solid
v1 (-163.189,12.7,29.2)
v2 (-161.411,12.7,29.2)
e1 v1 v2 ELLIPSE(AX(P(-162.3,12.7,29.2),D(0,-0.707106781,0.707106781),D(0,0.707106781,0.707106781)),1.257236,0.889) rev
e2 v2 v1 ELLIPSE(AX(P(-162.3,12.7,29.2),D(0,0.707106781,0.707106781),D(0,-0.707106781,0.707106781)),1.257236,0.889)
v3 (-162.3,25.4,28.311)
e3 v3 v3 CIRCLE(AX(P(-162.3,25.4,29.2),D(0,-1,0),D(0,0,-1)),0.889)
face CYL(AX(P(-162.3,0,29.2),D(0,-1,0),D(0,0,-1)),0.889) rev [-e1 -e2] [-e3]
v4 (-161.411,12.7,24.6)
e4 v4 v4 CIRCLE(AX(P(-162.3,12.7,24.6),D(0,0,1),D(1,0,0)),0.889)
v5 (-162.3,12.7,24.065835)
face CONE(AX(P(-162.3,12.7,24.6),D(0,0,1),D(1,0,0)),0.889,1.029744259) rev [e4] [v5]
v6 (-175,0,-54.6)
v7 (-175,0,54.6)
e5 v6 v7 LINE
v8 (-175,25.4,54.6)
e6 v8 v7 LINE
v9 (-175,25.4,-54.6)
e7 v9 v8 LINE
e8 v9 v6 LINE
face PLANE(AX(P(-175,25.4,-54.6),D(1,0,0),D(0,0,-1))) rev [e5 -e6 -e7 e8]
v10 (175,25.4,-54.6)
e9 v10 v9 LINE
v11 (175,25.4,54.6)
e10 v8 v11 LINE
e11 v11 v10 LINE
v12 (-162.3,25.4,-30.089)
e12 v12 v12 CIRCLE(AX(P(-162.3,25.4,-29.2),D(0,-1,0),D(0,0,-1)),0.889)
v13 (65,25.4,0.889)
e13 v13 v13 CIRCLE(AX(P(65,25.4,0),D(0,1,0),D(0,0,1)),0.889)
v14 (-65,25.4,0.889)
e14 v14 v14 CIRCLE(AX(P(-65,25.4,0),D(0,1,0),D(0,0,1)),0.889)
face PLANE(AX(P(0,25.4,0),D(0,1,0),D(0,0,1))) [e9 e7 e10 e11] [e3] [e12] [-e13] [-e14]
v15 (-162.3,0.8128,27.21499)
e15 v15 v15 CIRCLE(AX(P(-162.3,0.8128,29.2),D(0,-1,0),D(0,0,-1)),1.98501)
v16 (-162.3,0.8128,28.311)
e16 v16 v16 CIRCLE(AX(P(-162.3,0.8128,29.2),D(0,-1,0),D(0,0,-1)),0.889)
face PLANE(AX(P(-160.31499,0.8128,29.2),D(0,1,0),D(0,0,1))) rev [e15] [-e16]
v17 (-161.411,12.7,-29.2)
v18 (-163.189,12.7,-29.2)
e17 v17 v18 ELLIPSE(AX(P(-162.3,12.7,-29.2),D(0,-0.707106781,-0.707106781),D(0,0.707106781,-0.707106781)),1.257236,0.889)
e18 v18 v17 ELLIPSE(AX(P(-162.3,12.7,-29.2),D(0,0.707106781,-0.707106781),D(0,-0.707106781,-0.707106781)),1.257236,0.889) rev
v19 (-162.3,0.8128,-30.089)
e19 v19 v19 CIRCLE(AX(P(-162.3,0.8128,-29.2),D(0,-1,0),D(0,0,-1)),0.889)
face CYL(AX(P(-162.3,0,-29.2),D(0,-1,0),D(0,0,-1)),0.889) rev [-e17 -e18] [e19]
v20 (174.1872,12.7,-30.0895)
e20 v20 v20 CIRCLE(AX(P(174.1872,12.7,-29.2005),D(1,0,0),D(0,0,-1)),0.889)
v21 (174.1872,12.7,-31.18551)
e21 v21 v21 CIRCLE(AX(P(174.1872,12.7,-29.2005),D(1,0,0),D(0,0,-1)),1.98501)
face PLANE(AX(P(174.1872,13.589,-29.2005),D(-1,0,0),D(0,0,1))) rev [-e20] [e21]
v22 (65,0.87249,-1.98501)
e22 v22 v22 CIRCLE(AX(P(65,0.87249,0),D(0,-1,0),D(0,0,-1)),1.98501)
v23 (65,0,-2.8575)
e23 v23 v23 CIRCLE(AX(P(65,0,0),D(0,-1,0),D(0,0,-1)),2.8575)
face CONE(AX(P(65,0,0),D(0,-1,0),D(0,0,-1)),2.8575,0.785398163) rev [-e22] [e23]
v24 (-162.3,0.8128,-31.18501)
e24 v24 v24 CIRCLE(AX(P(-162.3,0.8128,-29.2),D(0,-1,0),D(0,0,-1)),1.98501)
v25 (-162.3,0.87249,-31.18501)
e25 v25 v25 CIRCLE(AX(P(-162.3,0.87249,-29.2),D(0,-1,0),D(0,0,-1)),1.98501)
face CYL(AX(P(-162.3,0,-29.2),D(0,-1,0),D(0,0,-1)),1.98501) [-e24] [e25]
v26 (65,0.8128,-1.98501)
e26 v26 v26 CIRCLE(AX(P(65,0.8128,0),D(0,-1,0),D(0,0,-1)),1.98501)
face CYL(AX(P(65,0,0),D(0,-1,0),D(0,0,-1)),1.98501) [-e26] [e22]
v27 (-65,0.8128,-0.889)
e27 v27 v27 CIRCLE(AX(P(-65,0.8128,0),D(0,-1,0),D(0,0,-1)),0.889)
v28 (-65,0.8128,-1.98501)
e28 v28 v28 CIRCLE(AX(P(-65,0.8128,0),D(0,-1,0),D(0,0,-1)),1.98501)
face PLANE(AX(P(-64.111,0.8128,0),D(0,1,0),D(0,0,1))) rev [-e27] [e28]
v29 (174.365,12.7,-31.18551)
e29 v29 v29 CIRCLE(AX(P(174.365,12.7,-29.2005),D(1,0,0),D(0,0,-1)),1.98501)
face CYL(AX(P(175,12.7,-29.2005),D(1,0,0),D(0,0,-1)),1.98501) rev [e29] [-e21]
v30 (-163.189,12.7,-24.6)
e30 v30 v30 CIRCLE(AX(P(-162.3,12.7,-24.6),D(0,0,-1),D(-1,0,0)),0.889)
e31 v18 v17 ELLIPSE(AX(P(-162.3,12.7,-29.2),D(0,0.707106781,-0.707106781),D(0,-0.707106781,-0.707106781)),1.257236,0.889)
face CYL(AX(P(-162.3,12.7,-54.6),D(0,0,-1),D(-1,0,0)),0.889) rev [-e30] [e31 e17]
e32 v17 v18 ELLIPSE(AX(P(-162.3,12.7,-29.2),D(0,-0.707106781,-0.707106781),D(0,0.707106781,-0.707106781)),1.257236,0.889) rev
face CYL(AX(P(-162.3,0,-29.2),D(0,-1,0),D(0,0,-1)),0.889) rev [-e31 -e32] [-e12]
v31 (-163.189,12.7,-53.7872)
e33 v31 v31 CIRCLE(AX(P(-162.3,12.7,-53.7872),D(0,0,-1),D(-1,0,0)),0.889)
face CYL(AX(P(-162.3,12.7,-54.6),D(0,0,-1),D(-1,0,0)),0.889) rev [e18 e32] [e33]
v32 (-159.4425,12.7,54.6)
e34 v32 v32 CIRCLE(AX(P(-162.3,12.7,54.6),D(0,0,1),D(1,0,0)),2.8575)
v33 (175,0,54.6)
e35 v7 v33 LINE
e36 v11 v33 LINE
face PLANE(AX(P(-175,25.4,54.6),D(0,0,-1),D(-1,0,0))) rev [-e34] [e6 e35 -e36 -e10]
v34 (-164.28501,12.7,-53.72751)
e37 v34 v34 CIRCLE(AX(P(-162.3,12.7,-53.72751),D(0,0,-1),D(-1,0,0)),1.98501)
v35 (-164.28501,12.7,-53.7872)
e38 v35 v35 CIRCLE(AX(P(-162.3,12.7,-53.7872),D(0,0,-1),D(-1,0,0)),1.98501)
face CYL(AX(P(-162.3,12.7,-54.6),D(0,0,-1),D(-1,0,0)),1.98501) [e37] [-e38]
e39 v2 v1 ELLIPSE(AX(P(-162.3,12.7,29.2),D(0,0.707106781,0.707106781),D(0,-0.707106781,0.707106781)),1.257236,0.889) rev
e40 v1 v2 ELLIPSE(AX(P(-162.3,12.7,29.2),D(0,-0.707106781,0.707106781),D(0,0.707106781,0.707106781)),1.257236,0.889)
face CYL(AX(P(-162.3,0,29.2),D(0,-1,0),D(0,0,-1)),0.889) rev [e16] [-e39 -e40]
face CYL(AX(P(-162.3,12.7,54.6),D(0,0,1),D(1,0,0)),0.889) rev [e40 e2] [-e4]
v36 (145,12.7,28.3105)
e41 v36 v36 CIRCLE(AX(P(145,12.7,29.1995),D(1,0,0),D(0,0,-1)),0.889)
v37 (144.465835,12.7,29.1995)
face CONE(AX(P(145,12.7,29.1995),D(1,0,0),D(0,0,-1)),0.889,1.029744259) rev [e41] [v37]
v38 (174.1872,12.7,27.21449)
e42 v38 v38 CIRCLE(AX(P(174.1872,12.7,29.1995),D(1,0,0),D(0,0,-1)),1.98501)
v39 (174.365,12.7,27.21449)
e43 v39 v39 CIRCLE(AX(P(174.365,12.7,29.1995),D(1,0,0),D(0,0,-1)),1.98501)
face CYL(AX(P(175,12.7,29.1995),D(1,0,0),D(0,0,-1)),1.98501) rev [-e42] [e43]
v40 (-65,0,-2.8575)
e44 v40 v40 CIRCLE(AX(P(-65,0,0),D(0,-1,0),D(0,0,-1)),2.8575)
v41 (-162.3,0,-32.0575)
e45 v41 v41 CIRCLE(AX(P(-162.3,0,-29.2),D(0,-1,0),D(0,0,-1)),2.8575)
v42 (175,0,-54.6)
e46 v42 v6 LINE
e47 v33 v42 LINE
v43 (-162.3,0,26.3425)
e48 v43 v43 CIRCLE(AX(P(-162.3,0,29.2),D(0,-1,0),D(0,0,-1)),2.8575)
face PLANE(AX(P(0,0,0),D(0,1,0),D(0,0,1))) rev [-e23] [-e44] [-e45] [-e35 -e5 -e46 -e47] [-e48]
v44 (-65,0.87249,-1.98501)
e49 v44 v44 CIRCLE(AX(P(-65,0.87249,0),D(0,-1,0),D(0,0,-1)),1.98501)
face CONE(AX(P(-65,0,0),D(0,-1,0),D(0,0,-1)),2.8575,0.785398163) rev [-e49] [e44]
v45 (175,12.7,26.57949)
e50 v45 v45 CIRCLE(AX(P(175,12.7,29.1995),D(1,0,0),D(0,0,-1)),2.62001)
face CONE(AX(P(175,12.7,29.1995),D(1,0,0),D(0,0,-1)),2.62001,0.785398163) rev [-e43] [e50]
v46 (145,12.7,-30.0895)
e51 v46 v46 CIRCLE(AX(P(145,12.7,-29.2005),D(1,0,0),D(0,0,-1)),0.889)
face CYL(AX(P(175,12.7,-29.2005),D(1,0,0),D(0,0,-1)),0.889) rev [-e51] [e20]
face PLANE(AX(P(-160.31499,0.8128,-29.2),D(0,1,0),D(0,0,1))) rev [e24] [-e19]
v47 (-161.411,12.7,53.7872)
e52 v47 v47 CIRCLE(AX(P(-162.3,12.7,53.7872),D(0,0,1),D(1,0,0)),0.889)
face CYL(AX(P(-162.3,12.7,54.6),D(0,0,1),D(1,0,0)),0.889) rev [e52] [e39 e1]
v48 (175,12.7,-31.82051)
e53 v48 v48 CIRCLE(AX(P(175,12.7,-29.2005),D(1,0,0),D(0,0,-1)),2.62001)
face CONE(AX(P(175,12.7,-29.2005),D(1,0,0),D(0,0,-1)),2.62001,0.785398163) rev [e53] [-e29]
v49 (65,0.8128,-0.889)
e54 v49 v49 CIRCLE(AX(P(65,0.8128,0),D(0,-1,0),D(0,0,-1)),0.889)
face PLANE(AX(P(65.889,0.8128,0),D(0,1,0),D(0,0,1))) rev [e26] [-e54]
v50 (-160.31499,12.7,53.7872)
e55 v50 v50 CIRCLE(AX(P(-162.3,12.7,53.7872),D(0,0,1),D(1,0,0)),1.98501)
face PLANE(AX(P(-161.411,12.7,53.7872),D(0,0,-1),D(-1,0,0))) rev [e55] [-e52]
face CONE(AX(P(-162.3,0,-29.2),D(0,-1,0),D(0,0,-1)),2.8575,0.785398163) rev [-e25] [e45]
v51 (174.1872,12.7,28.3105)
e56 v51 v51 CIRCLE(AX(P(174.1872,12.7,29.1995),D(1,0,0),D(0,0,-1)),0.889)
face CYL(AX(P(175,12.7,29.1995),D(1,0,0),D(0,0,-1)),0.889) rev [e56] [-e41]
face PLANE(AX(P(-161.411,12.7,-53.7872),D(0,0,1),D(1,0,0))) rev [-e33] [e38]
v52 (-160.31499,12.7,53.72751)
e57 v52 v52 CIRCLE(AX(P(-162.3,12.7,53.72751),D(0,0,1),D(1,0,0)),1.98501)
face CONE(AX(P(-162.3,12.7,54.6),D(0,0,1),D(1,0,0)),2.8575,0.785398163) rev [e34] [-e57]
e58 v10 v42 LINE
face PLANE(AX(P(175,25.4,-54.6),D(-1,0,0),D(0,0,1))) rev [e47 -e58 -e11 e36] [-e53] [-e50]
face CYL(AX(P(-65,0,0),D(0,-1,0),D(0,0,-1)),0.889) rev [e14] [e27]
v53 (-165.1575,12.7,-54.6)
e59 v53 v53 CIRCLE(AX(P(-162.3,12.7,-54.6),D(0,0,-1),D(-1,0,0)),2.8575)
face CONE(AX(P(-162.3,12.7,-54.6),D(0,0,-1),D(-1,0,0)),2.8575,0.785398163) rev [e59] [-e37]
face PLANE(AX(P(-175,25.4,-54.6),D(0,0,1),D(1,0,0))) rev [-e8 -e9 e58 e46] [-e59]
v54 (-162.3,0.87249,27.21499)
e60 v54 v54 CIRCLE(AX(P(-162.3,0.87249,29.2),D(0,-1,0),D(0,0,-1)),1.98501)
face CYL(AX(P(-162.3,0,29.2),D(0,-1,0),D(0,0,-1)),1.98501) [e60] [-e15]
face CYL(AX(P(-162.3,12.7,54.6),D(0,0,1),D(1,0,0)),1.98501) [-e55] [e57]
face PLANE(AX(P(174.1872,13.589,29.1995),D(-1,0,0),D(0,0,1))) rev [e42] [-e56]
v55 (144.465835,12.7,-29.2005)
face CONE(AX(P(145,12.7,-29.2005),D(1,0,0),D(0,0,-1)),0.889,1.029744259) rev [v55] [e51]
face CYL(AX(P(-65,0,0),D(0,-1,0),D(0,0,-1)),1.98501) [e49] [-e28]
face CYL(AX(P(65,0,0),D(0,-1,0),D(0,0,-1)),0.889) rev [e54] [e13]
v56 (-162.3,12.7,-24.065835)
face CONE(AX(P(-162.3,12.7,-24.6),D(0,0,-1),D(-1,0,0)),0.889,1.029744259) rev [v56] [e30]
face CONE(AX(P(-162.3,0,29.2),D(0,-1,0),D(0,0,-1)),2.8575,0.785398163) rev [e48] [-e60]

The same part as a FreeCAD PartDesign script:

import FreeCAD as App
import Part
import Sketcher
from FreeCAD import Vector
Q = App.Units.Quantity


def add_polygon(sketch, points):
    """Adds a closed chain of lines whose ends are joined by coincident constraints."""
    first, n = sketch.GeometryCount, len(points)
    for a, b in zip(points, points[1:] + points[:1]):
        sketch.addGeometry(Part.LineSegment(App.Vector(*a, 0), App.Vector(*b, 0)), False)
    for i in range(n):
        sketch.addConstraint(Sketcher.Constraint("Coincident", first + i, 2, first + (i + 1) % n, 1))

doc = App.newDocument("Part")
params = doc.addObject("Spreadsheet::Sheet", "Params")
for row, (alias, value) in enumerate([
    ("pad1_length", "1 in"),
    ("groove_angle", "360 deg"),
    ("sketch3_width", "0.007 in"),
    ("groove2_angle", "360 deg"),
    ("linearpattern_pitch", "58.4 mm"),
    ("groove3_angle", "360 deg"),
    ("linearpattern2_pitch", "130 mm"),
    ("sketch5_width", "1 in"),
    ("sketch5_width2", "0.968 in"),
    ("sketch5_height", "0.035 in"),
    ("groove4_angle", "360 deg"),
    ("linearpattern3_pitch", "58.4 mm"),
], start=1):
    params.set(f"A{row}", alias)
    params.set(f"B{row}", "=" + value)
    params.setAlias(f"B{row}", alias)

body = doc.addObject("PartDesign::Body", "Body")

# Sketch on XZ plane
sketch1 = body.newObject("Sketcher::SketchObject", "Sketch")
sketch1.AttachmentSupport = (doc.getObject("XZ_Plane"), [""])
sketch1.MapMode = "FlatFace"
add_polygon(sketch1, [(-175, -55), (-175, 55), (175, 55), (175, -55)])  # lines 0-3
sketch1.addConstraint([
    Sketcher.Constraint("Vertical", 0),
    Sketcher.Constraint("Horizontal", 1),
    Sketcher.Constraint("Vertical", 2),
    Sketcher.Constraint("Horizontal", 3),
    Sketcher.Constraint("Symmetric", 0, 2, 2, 2, -1, 1),
    Sketcher.Constraint("DistanceX", 1, 1, 1, 2, 350.0),
    Sketcher.Constraint("DistanceY", 0, 1, 0, 2, 109.2),
])
pad1 = body.newObject("PartDesign::Pad", "Pad")
pad1.Profile = sketch1
pad1.setExpression("Length", "Params.pad1_length")
pad1.Reversed = True

# Sketch on YZ plane
sketch2 = body.newObject("Sketcher::SketchObject", "Sketch001")
sketch2.AttachmentSupport = (doc.getObject("YZ_Plane"), [""])
sketch2.MapMode = "FlatFace"
sketch2.AttachmentOffset = App.Placement(Vector(0, 0, -162.3), App.Rotation())
add_polygon(sketch2, [(12.7, 24.07), (12.7, 54.6), (9.84, 54.6), (10.71, 53.73), (10.71, 53.79), (11.81, 53.79), (11.81, 24.6)])  # lines 0-6
sketch2.addGeometry(Part.LineSegment(Vector(12.7, 54.6, 0), Vector(12.7, 24.07, 0)), True)  # axis
sketch2.addConstraint([
    Sketcher.Constraint("Vertical", 0),
    Sketcher.Constraint("Horizontal", 1),
    Sketcher.Constraint("Vertical", 3),
    Sketcher.Constraint("Horizontal", 4),
    Sketcher.Constraint("Vertical", 5),
    Sketcher.Constraint("Vertical", 7),
    Sketcher.Constraint("Coincident", 7, 1, 0, 2),
    Sketcher.Constraint("Equal", 0, 7),
    Sketcher.Constraint("Angle", 2, Q("-45 deg")),
    Sketcher.Constraint("Angle", 6, Q("-31 deg")),
    Sketcher.Constraint("DistanceX", -1, 1, 0, 2, Q("0.5 in")),
    Sketcher.Constraint("DistanceX", 1, 2, 1, 1, Q("0.1125 in")),
    Sketcher.Constraint("DistanceX", -1, 1, 4, 2, Q("0.465 in")),
    Sketcher.Constraint("DistanceY", 3, 2, 1, 2, Q("0.032 in")),
    Sketcher.Constraint("DistanceY", 5, 2, 5, 1, 29.1872),
    Sketcher.Constraint("DistanceX", 4, 1, 4, 2, 1.09601),
    Sketcher.Constraint("DistanceY", -1, 1, 0, 2, 54.6),
])
groove = body.newObject("PartDesign::Groove", "Groove")
groove.Profile = sketch2
groove.ReferenceAxis = (sketch2, ["Axis0"])
groove.setExpression("Angle", "Params.groove_angle")
doc.recompute()

mirrored = body.newObject("PartDesign::Mirrored", "Mirrored")
mirrored.Originals = [groove]
mirrored.MirrorPlane = (doc.getObject("XY_Plane"), [""])
body.Tip = mirrored

# Sketch on XZ plane
sketch3 = body.newObject("Sketcher::SketchObject", "Sketch002")
sketch3.AttachmentSupport = (doc.getObject("XZ_Plane"), [""])
sketch3.MapMode = "FlatFace"
sketch3.AttachmentOffset = App.Placement(Vector(0, 0, -0.5 * 25.4), App.Rotation())
add_polygon(sketch3, [(144.47, 29.2), (175, 29.2), (175, 26.58), (174.37, 27.21), (174.19, 27.21), (174.19, 28.31), (145, 28.31)])  # lines 0-6
sketch3.addGeometry(Part.LineSegment(Vector(175, 29.2, 0), Vector(144.47, 29.2, 0)), True)  # axis
sketch3.addConstraint([
    Sketcher.Constraint("Horizontal", 0),
    Sketcher.Constraint("Vertical", 1),
    Sketcher.Constraint("Horizontal", 3),
    Sketcher.Constraint("Vertical", 4),
    Sketcher.Constraint("Horizontal", 5),
    Sketcher.Constraint("Horizontal", 7),
    Sketcher.Constraint("Coincident", 7, 1, 0, 2),
    Sketcher.Constraint("Equal", 0, 7),
    Sketcher.Constraint("Angle", 2, Q("135 deg")),
    Sketcher.Constraint("Angle", 6, Q("121 deg")),
    Sketcher.Constraint("DistanceX", 3, 2, 3, 1, Q("0.007 in")),
    Sketcher.Constraint("DistanceX", 2, 2, 1, 2, Q("0.025 in")),
    Sketcher.Constraint("DistanceY", 4, 2, 0, 2, Q("0.035 in")),
    Sketcher.Constraint("DistanceX", 5, 2, 5, 1, 29.1872),
    Sketcher.Constraint("DistanceY", 1, 2, 1, 1, 2.62001),
    Sketcher.Constraint("DistanceX", -1, 1, 0, 2, 175.0),
    Sketcher.Constraint("DistanceY", -1, 1, 0, 2, 29.1995),
])
sketch3.setExpression("Constraints[17]", "Params.sketch3_width")
groove2 = body.newObject("PartDesign::Groove", "Groove001")
groove2.Profile = sketch3
groove2.ReferenceAxis = (sketch3, ["Axis0"])
groove2.setExpression("Angle", "Params.groove2_angle")
doc.recompute()

linearpattern = body.newObject("PartDesign::LinearPattern", "LinearPattern")
linearpattern.Originals = [groove2]
linearpattern.Direction = (doc.getObject("Z_Axis"), [""])
linearpattern.Mode = "offset"
linearpattern.setExpression("Offset", "Params.linearpattern_pitch")
linearpattern.Occurrences = 2
linearpattern.Reversed = True
body.Tip = linearpattern

# Sketch on YZ plane
sketch4 = body.newObject("Sketcher::SketchObject", "Sketch003")
sketch4.AttachmentSupport = (doc.getObject("YZ_Plane"), [""])
sketch4.MapMode = "FlatFace"
sketch4.AttachmentOffset = App.Placement(Vector(0, 0, -65), App.Rotation())
add_polygon(sketch4, [(30.53, 0), (0, 0), (0, -2.86), (0.87, -1.99), (0.81, -1.99), (0.81, -0.89), (30, -0.89)])  # lines 0-6
sketch4.addConstraint([
    Sketcher.Constraint("Horizontal", 0),
    Sketcher.Constraint("Vertical", 1),
    Sketcher.Constraint("Horizontal", 3),
    Sketcher.Constraint("Vertical", 4),
    Sketcher.Constraint("Horizontal", 5),
    Sketcher.Constraint("Coincident", 0, 2, -1, 1),
    Sketcher.Constraint("Angle", 2, Q("45 deg")),
    Sketcher.Constraint("Angle", 6, Q("59 deg")),
    Sketcher.Constraint("DistanceY", 1, 2, 1, 1, Q("0.1125 in")),
    Sketcher.Constraint("DistanceX", -1, 1, 3, 2, Q("0.032 in")),
    Sketcher.Constraint("DistanceY", 4, 2, -1, 1, Q("0.035 in")),
    Sketcher.Constraint("DistanceX", 5, 1, 5, 2, 29.1872),
    Sketcher.Constraint("DistanceX", 3, 2, 3, 1, 0.05969),
])
groove3 = body.newObject("PartDesign::Groove", "Groove002")
groove3.Profile = sketch4
groove3.ReferenceAxis = (sketch4, ["H_Axis"])
groove3.setExpression("Angle", "Params.groove3_angle")
doc.recompute()

linearpattern2 = body.newObject("PartDesign::LinearPattern", "LinearPattern001")
linearpattern2.Originals = [groove3]
linearpattern2.Direction = (doc.getObject("X_Axis"), [""])
linearpattern2.Mode = "offset"
linearpattern2.setExpression("Offset", "Params.linearpattern2_pitch")
linearpattern2.Occurrences = 2
body.Tip = linearpattern2

# Sketch on YZ plane
sketch5 = body.newObject("Sketcher::SketchObject", "Sketch004")
sketch5.AttachmentSupport = (doc.getObject("YZ_Plane"), [""])
sketch5.MapMode = "FlatFace"
sketch5.AttachmentOffset = App.Placement(Vector(0, 0, -162.3), App.Rotation())
add_polygon(sketch5, [(25.4, -29.2), (0, -29.2), (0, -32.06), (0.87, -31.19), (0.81, -31.19), (0.81, -30.09), (25.4, -30.09)])  # lines 0-6
sketch5.addGeometry(Part.LineSegment(Vector(0, -29.2, 0), Vector(25.4, -29.2, 0)), True)  # axis
sketch5.addConstraint([
    Sketcher.Constraint("Horizontal", 0),
    Sketcher.Constraint("Vertical", 1),
    Sketcher.Constraint("Horizontal", 3),
    Sketcher.Constraint("Vertical", 4),
    Sketcher.Constraint("Horizontal", 5),
    Sketcher.Constraint("Vertical", 6),
    Sketcher.Constraint("Horizontal", 7),
    Sketcher.Constraint("Coincident", 7, 1, 0, 2),
    Sketcher.Constraint("PointOnObject", 0, 2, -2),
    Sketcher.Constraint("Vertical", 5, 2, 7, 2),
    Sketcher.Constraint("DistanceX", 0, 2, 0, 1, Q("1 in")),
    Sketcher.Constraint("Angle", 2, Q("45 deg")),
    Sketcher.Constraint("DistanceX", 5, 1, 5, 2, Q("0.968 in")),
    Sketcher.Constraint("DistanceY", 6, 1, 6, 2, Q("0.035 in")),
    Sketcher.Constraint("DistanceY", 1, 2, 1, 1, Q("0.1125 in")),
    Sketcher.Constraint("DistanceX", 3, 2, 3, 1, 0.05969),
    Sketcher.Constraint("DistanceY", 0, 2, -1, 1, 29.2),
])
sketch5.setExpression("Constraints[17]", "Params.sketch5_width")
sketch5.setExpression("Constraints[19]", "Params.sketch5_width2")
sketch5.setExpression("Constraints[20]", "Params.sketch5_height")
groove4 = body.newObject("PartDesign::Groove", "Groove003")
groove4.Profile = sketch5
groove4.ReferenceAxis = (sketch5, ["Axis0"])
groove4.setExpression("Angle", "Params.groove4_angle")
doc.recompute()

linearpattern3 = body.newObject("PartDesign::LinearPattern", "LinearPattern002")
linearpattern3.Originals = [groove4]
linearpattern3.Direction = (doc.getObject("Z_Axis"), [""])
linearpattern3.Mode = "offset"
linearpattern3.setExpression("Offset", "Params.linearpattern3_pitch")
linearpattern3.Occurrences = 2
body.Tip = linearpattern3

doc.recompute()
